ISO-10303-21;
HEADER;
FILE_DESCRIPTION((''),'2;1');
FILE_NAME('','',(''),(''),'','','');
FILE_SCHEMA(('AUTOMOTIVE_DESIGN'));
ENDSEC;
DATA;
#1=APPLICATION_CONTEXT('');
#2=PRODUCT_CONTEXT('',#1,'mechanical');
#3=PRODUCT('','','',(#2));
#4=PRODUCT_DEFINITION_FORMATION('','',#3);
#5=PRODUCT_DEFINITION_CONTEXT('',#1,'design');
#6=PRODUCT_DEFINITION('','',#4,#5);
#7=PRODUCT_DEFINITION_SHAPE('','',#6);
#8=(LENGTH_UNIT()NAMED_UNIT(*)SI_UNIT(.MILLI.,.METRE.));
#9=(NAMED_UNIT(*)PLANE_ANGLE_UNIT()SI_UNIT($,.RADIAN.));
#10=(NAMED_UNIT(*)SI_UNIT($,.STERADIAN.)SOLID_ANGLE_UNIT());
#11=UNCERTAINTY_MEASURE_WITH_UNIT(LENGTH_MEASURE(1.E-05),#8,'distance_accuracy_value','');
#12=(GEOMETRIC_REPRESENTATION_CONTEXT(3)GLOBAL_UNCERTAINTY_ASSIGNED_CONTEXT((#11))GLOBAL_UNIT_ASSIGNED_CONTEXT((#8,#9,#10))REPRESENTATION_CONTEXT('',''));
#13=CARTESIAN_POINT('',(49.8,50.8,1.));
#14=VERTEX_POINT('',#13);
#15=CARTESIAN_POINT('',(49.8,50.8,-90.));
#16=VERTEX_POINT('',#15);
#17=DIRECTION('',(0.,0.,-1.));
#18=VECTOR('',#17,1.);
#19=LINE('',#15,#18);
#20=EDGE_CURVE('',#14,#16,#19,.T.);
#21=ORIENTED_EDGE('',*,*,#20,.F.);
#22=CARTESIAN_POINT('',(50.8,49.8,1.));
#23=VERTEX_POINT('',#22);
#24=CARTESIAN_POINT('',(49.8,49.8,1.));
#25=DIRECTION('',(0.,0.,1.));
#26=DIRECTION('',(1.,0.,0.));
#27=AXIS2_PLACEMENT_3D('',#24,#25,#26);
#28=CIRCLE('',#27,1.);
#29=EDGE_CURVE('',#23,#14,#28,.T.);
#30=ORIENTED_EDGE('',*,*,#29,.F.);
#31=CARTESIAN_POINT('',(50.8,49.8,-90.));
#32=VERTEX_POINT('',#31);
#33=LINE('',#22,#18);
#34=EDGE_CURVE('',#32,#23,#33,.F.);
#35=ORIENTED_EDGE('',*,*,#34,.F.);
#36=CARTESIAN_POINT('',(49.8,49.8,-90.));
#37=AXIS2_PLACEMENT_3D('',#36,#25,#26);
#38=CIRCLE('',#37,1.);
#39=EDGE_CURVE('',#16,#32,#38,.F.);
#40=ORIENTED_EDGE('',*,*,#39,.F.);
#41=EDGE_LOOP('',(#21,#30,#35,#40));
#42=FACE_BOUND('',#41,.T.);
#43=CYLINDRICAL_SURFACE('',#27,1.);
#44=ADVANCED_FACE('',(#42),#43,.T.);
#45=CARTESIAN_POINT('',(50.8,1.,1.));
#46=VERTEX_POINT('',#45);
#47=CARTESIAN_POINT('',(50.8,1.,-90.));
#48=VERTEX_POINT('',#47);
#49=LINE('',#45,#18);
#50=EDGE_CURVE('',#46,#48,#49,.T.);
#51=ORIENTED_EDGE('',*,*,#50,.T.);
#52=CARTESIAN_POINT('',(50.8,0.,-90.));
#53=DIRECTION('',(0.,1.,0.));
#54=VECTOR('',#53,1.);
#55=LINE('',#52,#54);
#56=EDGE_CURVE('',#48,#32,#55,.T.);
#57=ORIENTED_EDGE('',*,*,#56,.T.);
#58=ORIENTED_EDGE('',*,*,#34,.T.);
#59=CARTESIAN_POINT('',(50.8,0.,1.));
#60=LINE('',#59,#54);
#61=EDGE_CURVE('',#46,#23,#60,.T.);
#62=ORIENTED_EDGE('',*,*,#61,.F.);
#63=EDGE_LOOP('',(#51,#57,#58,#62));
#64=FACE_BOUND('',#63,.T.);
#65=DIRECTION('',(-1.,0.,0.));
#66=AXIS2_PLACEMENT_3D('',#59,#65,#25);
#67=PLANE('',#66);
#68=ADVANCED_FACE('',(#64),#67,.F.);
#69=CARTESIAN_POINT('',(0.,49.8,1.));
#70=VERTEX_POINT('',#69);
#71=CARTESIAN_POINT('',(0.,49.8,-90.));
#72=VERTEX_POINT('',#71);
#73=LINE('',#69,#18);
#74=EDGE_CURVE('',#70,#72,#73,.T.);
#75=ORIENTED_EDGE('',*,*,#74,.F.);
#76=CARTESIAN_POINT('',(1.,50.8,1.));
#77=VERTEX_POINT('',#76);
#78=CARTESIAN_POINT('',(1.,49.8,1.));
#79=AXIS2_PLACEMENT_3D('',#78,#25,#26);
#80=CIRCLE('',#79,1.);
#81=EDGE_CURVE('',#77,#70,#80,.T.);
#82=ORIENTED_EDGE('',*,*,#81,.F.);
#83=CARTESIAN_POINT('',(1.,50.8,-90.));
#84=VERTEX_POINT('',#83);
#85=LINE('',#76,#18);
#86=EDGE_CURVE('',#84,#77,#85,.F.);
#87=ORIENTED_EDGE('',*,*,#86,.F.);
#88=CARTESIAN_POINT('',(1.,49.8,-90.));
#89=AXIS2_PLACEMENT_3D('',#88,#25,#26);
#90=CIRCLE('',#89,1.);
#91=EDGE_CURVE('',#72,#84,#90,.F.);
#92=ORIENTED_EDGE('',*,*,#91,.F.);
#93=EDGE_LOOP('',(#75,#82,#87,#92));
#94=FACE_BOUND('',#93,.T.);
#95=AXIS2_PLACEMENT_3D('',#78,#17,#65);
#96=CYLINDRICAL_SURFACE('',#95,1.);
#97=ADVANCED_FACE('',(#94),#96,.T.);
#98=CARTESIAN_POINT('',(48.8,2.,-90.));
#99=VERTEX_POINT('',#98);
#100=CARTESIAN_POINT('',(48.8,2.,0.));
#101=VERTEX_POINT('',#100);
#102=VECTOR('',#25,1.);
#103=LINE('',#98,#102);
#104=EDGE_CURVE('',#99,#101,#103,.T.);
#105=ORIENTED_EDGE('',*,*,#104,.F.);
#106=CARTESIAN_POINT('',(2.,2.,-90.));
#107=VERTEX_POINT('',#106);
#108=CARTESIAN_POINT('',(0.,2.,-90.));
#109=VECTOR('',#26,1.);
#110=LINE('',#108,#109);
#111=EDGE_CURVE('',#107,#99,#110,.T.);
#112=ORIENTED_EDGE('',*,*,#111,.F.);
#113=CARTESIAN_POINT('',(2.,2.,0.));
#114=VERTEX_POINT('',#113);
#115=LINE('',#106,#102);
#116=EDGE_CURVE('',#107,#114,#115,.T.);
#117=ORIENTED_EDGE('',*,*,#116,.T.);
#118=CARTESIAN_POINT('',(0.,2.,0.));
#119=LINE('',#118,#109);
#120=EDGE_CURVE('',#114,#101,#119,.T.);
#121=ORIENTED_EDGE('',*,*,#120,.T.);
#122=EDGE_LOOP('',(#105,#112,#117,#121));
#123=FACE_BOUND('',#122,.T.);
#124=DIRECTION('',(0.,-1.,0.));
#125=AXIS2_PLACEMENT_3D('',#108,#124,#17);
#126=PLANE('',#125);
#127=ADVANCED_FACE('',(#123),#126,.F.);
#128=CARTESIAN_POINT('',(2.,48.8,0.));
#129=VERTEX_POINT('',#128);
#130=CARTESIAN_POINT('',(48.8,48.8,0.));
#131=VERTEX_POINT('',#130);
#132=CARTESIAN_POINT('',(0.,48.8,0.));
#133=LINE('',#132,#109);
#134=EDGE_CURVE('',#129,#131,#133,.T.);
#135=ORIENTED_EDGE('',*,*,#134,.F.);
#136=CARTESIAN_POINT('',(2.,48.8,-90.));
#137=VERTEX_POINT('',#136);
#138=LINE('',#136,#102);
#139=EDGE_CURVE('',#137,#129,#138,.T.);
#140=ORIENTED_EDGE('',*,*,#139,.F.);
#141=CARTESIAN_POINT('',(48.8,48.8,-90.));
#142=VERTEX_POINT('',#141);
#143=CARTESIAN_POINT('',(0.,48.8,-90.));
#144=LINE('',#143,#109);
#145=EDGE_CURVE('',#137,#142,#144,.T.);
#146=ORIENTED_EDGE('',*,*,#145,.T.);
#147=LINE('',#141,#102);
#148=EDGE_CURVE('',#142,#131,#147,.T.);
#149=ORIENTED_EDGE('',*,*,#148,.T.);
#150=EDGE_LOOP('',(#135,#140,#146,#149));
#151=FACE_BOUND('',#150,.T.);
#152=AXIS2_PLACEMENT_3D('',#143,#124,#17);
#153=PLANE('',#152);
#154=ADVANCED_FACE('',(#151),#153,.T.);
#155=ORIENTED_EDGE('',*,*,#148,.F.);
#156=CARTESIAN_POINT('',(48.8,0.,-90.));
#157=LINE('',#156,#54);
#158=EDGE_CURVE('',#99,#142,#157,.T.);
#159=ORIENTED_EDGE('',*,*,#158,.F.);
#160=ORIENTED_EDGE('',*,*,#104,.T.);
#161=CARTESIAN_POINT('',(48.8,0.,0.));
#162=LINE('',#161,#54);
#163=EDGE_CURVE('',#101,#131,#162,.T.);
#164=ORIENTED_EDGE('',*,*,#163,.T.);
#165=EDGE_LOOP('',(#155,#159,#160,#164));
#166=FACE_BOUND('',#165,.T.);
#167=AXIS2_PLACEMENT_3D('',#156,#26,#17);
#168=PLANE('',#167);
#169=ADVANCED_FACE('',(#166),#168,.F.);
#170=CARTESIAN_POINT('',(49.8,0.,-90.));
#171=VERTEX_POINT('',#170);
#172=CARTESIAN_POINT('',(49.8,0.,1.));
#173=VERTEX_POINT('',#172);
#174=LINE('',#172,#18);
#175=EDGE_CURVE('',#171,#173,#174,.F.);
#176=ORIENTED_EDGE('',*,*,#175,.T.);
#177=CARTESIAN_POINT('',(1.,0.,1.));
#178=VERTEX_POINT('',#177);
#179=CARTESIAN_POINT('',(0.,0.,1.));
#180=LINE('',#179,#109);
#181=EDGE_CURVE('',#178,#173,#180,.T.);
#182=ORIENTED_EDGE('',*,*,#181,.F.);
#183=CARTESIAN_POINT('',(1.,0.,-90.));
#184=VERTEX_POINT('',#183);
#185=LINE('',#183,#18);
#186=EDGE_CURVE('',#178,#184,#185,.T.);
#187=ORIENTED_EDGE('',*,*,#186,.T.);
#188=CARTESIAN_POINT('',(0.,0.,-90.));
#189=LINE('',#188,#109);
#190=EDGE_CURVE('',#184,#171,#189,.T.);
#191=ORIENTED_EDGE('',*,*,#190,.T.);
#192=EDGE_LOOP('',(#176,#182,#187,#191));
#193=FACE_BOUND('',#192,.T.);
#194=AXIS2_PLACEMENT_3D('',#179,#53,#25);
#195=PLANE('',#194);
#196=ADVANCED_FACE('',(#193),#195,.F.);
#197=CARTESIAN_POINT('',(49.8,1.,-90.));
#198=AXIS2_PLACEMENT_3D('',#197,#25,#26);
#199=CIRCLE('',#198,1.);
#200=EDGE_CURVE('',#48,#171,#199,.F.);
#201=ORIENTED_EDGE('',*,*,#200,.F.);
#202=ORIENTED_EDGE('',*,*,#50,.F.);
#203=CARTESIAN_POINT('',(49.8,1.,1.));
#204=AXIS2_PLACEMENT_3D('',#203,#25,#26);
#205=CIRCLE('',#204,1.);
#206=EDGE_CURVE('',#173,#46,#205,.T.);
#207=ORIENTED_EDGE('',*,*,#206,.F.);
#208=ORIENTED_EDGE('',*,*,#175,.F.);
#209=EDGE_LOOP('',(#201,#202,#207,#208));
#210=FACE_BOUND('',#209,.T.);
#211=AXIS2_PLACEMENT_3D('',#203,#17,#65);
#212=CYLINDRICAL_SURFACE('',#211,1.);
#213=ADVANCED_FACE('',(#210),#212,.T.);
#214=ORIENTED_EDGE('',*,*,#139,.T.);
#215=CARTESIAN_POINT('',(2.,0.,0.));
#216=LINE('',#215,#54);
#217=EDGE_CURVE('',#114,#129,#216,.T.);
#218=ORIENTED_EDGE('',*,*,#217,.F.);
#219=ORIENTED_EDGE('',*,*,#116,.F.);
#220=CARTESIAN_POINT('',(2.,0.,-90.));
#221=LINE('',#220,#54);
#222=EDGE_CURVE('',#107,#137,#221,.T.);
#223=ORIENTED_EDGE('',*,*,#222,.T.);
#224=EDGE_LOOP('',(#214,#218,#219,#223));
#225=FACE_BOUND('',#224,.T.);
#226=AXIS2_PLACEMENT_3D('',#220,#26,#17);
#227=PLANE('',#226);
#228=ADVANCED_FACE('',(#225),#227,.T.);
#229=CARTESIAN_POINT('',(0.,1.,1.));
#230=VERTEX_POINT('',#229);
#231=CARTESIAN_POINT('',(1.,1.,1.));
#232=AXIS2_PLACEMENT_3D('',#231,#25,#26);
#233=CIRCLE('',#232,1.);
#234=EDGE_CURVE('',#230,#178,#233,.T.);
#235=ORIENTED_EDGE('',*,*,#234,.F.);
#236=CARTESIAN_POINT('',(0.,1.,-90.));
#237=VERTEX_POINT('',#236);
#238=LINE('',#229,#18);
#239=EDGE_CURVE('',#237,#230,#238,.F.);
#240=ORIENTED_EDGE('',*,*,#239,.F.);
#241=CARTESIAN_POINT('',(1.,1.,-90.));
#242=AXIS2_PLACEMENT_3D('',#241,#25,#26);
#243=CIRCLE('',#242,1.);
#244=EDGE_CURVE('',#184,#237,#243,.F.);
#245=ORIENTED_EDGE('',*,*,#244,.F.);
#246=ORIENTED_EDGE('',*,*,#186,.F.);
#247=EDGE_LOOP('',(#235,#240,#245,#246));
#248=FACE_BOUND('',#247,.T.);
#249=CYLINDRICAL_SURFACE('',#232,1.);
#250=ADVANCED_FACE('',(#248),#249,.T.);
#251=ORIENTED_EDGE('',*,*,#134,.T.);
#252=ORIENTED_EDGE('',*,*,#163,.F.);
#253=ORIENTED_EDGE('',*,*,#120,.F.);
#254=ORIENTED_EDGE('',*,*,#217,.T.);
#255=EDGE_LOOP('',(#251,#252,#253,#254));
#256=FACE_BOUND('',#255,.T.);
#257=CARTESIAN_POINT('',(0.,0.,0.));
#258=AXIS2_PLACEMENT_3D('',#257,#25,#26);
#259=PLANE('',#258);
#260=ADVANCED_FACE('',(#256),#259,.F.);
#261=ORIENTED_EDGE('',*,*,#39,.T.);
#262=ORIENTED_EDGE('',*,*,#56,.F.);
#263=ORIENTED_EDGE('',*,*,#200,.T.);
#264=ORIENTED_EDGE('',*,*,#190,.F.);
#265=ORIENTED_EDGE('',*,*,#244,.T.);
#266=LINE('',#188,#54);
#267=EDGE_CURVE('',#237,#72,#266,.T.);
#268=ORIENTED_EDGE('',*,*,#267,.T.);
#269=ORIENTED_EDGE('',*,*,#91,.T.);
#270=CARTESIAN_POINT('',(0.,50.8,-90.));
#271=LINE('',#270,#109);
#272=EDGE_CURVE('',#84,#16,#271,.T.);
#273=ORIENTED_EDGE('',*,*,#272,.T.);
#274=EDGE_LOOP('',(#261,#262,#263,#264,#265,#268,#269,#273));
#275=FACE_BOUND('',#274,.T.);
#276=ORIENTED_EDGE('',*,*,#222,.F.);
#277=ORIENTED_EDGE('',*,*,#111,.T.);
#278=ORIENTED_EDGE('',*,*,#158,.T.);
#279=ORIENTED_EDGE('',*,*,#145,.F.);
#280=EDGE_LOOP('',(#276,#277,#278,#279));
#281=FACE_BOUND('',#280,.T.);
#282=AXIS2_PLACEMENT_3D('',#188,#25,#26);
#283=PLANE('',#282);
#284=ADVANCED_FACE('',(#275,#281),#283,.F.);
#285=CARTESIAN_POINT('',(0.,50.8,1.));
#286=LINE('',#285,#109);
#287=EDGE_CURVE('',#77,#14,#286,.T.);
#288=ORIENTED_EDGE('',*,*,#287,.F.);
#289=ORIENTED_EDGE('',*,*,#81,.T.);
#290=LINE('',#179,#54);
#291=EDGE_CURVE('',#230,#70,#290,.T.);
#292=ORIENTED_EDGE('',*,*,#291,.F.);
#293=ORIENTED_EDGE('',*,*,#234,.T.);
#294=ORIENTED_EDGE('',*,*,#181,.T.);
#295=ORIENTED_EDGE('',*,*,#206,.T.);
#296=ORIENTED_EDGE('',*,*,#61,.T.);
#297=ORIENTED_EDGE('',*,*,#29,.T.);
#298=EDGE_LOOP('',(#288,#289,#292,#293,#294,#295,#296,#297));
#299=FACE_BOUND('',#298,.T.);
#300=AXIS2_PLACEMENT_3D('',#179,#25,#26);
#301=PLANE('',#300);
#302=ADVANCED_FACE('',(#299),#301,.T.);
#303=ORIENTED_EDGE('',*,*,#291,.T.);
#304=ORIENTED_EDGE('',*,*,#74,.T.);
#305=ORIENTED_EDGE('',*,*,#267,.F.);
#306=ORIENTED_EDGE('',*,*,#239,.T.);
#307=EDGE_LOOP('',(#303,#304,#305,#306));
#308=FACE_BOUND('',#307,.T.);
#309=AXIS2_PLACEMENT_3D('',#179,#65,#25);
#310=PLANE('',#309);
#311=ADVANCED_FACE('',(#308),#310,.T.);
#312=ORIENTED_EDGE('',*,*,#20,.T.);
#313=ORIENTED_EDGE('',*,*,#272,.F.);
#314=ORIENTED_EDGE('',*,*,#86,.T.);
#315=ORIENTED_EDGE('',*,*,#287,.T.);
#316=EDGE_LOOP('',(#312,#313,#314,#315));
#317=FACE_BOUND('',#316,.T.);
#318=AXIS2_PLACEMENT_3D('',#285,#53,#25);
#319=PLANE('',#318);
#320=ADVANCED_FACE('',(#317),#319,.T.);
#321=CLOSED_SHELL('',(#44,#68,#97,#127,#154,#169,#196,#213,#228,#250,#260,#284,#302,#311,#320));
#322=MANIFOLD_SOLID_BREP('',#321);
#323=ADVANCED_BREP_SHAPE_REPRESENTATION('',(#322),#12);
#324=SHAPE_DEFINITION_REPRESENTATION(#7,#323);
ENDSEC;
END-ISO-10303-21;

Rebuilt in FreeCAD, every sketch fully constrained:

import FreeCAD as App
import Part
import Sketcher

V = App.Vector
Q = App.Units.Quantity


def edges_at(feature, points):
    """Names of the edges that pass closest to the given points."""
    edges = feature.Shape.Edges
    near = lambda p: min(range(len(edges)), key=lambda i: edges[i].distToShape(Part.Vertex(*p))[0])
    return sorted({f"Edge{near(p) + 1}" for p in points})

doc = App.newDocument("Part")
body = doc.addObject("PartDesign::Body", "Body")

# Sketch on XY plane
sketch1 = body.newObject("Sketcher::SketchObject", "Sketch")
sketch1.AttachmentSupport = (doc.getObject("XY_Plane"), [""])
sketch1.MapMode = "FlatFace"
sketch1.addGeometry([
    Part.LineSegment(V(0, 50.8, 0), V(0, 0, 0)),
    Part.LineSegment(V(0, 0, 0), V(50.8, 0, 0)),
    Part.LineSegment(V(50.8, 0, 0), V(50.8, 50.8, 0)),
    Part.LineSegment(V(50.8, 50.8, 0), V(0, 50.8, 0)),
], False)
sketch1.addConstraint([
    Sketcher.Constraint("Coincident", 0, 2, 1, 1),
    Sketcher.Constraint("Coincident", 1, 2, 2, 1),
    Sketcher.Constraint("Coincident", 2, 2, 3, 1),
    Sketcher.Constraint("Coincident", 3, 2, 0, 1),
    Sketcher.Constraint("Vertical", 0),
    Sketcher.Constraint("Horizontal", 1),
    Sketcher.Constraint("Vertical", 2),
    Sketcher.Constraint("Horizontal", 3),
    Sketcher.Constraint("Coincident", 0, 2, -1, 1),
    Sketcher.Constraint("Equal", 3, 0),
    Sketcher.Constraint("DistanceX", 1, 1, 1, 2, Q("50.8 mm")),
])
pad1 = body.newObject("PartDesign::Pad", "Pad")
pad1.Profile = sketch1
pad1.Length = 1

# Sketch on XY plane
sketch2 = body.newObject("Sketcher::SketchObject", "Sketch001")
sketch2.AttachmentSupport = (doc.getObject("XY_Plane"), [""])
sketch2.MapMode = "FlatFace"
sketch2.addGeometry([
    Part.LineSegment(V(0, 50.8, 0), V(0, 0, 0)),  # 0
    Part.LineSegment(V(0, 0, 0), V(50.8, 0, 0)),  # 1
    Part.LineSegment(V(50.8, 0, 0), V(50.8, 50.8, 0)),  # 2
    Part.LineSegment(V(50.8, 50.8, 0), V(0, 50.8, 0)),  # 3
    Part.LineSegment(V(48.8, 2, 0), V(2, 2, 0)),  # 4
    Part.LineSegment(V(2, 2, 0), V(2, 48.8, 0)),  # 5
    Part.LineSegment(V(2, 48.8, 0), V(48.8, 48.8, 0)),  # 6
    Part.LineSegment(V(48.8, 48.8, 0), V(48.8, 2, 0)),  # 7
], False)
sketch2.addConstraint([
    Sketcher.Constraint("Coincident", 0, 2, 1, 1),
    Sketcher.Constraint("Coincident", 1, 2, 2, 1),
    Sketcher.Constraint("Coincident", 2, 2, 3, 1),
    Sketcher.Constraint("Coincident", 3, 2, 0, 1),
    Sketcher.Constraint("Coincident", 4, 2, 5, 1),
    Sketcher.Constraint("Coincident", 5, 2, 6, 1),
    Sketcher.Constraint("Coincident", 6, 2, 7, 1),
    Sketcher.Constraint("Coincident", 7, 2, 4, 1),
    Sketcher.Constraint("Vertical", 0),
    Sketcher.Constraint("Horizontal", 1),
    Sketcher.Constraint("Vertical", 2),
    Sketcher.Constraint("Horizontal", 3),
    Sketcher.Constraint("Horizontal", 4),
    Sketcher.Constraint("Vertical", 5),
    Sketcher.Constraint("Horizontal", 6),
    Sketcher.Constraint("Vertical", 7),
    Sketcher.Constraint("Coincident", 0, 2, -1, 1),
    Sketcher.Constraint("Equal", 3, 0),
    Sketcher.Constraint("Equal", 6, 5),
    Sketcher.Constraint("DistanceX", 1, 1, 1, 2, Q("50.8 mm")),
    Sketcher.Constraint("DistanceX", 4, 2, 4, 1, Q("46.8 mm")),
    Sketcher.Constraint("DistanceX", -1, 1, 4, 2, Q("2 mm")),
    Sketcher.Constraint("DistanceY", -1, 1, 4, 2, Q("2 mm")),
])
pad2 = body.newObject("PartDesign::Pad", "Pad001")
pad2.Profile = sketch2
pad2.Length = 90
pad2.Reversed = True
doc.recompute()

fillet = body.newObject("PartDesign::Fillet", "Fillet")
fillet.Base = (pad2, edges_at(pad2, [
    (0, 0, -44.5),
    (0, 50.8, -44.5),
    (50.8, 50.8, -44.5),
    (50.8, 0, -44.5),
]))
fillet.Radius = 1

doc.recompute()
